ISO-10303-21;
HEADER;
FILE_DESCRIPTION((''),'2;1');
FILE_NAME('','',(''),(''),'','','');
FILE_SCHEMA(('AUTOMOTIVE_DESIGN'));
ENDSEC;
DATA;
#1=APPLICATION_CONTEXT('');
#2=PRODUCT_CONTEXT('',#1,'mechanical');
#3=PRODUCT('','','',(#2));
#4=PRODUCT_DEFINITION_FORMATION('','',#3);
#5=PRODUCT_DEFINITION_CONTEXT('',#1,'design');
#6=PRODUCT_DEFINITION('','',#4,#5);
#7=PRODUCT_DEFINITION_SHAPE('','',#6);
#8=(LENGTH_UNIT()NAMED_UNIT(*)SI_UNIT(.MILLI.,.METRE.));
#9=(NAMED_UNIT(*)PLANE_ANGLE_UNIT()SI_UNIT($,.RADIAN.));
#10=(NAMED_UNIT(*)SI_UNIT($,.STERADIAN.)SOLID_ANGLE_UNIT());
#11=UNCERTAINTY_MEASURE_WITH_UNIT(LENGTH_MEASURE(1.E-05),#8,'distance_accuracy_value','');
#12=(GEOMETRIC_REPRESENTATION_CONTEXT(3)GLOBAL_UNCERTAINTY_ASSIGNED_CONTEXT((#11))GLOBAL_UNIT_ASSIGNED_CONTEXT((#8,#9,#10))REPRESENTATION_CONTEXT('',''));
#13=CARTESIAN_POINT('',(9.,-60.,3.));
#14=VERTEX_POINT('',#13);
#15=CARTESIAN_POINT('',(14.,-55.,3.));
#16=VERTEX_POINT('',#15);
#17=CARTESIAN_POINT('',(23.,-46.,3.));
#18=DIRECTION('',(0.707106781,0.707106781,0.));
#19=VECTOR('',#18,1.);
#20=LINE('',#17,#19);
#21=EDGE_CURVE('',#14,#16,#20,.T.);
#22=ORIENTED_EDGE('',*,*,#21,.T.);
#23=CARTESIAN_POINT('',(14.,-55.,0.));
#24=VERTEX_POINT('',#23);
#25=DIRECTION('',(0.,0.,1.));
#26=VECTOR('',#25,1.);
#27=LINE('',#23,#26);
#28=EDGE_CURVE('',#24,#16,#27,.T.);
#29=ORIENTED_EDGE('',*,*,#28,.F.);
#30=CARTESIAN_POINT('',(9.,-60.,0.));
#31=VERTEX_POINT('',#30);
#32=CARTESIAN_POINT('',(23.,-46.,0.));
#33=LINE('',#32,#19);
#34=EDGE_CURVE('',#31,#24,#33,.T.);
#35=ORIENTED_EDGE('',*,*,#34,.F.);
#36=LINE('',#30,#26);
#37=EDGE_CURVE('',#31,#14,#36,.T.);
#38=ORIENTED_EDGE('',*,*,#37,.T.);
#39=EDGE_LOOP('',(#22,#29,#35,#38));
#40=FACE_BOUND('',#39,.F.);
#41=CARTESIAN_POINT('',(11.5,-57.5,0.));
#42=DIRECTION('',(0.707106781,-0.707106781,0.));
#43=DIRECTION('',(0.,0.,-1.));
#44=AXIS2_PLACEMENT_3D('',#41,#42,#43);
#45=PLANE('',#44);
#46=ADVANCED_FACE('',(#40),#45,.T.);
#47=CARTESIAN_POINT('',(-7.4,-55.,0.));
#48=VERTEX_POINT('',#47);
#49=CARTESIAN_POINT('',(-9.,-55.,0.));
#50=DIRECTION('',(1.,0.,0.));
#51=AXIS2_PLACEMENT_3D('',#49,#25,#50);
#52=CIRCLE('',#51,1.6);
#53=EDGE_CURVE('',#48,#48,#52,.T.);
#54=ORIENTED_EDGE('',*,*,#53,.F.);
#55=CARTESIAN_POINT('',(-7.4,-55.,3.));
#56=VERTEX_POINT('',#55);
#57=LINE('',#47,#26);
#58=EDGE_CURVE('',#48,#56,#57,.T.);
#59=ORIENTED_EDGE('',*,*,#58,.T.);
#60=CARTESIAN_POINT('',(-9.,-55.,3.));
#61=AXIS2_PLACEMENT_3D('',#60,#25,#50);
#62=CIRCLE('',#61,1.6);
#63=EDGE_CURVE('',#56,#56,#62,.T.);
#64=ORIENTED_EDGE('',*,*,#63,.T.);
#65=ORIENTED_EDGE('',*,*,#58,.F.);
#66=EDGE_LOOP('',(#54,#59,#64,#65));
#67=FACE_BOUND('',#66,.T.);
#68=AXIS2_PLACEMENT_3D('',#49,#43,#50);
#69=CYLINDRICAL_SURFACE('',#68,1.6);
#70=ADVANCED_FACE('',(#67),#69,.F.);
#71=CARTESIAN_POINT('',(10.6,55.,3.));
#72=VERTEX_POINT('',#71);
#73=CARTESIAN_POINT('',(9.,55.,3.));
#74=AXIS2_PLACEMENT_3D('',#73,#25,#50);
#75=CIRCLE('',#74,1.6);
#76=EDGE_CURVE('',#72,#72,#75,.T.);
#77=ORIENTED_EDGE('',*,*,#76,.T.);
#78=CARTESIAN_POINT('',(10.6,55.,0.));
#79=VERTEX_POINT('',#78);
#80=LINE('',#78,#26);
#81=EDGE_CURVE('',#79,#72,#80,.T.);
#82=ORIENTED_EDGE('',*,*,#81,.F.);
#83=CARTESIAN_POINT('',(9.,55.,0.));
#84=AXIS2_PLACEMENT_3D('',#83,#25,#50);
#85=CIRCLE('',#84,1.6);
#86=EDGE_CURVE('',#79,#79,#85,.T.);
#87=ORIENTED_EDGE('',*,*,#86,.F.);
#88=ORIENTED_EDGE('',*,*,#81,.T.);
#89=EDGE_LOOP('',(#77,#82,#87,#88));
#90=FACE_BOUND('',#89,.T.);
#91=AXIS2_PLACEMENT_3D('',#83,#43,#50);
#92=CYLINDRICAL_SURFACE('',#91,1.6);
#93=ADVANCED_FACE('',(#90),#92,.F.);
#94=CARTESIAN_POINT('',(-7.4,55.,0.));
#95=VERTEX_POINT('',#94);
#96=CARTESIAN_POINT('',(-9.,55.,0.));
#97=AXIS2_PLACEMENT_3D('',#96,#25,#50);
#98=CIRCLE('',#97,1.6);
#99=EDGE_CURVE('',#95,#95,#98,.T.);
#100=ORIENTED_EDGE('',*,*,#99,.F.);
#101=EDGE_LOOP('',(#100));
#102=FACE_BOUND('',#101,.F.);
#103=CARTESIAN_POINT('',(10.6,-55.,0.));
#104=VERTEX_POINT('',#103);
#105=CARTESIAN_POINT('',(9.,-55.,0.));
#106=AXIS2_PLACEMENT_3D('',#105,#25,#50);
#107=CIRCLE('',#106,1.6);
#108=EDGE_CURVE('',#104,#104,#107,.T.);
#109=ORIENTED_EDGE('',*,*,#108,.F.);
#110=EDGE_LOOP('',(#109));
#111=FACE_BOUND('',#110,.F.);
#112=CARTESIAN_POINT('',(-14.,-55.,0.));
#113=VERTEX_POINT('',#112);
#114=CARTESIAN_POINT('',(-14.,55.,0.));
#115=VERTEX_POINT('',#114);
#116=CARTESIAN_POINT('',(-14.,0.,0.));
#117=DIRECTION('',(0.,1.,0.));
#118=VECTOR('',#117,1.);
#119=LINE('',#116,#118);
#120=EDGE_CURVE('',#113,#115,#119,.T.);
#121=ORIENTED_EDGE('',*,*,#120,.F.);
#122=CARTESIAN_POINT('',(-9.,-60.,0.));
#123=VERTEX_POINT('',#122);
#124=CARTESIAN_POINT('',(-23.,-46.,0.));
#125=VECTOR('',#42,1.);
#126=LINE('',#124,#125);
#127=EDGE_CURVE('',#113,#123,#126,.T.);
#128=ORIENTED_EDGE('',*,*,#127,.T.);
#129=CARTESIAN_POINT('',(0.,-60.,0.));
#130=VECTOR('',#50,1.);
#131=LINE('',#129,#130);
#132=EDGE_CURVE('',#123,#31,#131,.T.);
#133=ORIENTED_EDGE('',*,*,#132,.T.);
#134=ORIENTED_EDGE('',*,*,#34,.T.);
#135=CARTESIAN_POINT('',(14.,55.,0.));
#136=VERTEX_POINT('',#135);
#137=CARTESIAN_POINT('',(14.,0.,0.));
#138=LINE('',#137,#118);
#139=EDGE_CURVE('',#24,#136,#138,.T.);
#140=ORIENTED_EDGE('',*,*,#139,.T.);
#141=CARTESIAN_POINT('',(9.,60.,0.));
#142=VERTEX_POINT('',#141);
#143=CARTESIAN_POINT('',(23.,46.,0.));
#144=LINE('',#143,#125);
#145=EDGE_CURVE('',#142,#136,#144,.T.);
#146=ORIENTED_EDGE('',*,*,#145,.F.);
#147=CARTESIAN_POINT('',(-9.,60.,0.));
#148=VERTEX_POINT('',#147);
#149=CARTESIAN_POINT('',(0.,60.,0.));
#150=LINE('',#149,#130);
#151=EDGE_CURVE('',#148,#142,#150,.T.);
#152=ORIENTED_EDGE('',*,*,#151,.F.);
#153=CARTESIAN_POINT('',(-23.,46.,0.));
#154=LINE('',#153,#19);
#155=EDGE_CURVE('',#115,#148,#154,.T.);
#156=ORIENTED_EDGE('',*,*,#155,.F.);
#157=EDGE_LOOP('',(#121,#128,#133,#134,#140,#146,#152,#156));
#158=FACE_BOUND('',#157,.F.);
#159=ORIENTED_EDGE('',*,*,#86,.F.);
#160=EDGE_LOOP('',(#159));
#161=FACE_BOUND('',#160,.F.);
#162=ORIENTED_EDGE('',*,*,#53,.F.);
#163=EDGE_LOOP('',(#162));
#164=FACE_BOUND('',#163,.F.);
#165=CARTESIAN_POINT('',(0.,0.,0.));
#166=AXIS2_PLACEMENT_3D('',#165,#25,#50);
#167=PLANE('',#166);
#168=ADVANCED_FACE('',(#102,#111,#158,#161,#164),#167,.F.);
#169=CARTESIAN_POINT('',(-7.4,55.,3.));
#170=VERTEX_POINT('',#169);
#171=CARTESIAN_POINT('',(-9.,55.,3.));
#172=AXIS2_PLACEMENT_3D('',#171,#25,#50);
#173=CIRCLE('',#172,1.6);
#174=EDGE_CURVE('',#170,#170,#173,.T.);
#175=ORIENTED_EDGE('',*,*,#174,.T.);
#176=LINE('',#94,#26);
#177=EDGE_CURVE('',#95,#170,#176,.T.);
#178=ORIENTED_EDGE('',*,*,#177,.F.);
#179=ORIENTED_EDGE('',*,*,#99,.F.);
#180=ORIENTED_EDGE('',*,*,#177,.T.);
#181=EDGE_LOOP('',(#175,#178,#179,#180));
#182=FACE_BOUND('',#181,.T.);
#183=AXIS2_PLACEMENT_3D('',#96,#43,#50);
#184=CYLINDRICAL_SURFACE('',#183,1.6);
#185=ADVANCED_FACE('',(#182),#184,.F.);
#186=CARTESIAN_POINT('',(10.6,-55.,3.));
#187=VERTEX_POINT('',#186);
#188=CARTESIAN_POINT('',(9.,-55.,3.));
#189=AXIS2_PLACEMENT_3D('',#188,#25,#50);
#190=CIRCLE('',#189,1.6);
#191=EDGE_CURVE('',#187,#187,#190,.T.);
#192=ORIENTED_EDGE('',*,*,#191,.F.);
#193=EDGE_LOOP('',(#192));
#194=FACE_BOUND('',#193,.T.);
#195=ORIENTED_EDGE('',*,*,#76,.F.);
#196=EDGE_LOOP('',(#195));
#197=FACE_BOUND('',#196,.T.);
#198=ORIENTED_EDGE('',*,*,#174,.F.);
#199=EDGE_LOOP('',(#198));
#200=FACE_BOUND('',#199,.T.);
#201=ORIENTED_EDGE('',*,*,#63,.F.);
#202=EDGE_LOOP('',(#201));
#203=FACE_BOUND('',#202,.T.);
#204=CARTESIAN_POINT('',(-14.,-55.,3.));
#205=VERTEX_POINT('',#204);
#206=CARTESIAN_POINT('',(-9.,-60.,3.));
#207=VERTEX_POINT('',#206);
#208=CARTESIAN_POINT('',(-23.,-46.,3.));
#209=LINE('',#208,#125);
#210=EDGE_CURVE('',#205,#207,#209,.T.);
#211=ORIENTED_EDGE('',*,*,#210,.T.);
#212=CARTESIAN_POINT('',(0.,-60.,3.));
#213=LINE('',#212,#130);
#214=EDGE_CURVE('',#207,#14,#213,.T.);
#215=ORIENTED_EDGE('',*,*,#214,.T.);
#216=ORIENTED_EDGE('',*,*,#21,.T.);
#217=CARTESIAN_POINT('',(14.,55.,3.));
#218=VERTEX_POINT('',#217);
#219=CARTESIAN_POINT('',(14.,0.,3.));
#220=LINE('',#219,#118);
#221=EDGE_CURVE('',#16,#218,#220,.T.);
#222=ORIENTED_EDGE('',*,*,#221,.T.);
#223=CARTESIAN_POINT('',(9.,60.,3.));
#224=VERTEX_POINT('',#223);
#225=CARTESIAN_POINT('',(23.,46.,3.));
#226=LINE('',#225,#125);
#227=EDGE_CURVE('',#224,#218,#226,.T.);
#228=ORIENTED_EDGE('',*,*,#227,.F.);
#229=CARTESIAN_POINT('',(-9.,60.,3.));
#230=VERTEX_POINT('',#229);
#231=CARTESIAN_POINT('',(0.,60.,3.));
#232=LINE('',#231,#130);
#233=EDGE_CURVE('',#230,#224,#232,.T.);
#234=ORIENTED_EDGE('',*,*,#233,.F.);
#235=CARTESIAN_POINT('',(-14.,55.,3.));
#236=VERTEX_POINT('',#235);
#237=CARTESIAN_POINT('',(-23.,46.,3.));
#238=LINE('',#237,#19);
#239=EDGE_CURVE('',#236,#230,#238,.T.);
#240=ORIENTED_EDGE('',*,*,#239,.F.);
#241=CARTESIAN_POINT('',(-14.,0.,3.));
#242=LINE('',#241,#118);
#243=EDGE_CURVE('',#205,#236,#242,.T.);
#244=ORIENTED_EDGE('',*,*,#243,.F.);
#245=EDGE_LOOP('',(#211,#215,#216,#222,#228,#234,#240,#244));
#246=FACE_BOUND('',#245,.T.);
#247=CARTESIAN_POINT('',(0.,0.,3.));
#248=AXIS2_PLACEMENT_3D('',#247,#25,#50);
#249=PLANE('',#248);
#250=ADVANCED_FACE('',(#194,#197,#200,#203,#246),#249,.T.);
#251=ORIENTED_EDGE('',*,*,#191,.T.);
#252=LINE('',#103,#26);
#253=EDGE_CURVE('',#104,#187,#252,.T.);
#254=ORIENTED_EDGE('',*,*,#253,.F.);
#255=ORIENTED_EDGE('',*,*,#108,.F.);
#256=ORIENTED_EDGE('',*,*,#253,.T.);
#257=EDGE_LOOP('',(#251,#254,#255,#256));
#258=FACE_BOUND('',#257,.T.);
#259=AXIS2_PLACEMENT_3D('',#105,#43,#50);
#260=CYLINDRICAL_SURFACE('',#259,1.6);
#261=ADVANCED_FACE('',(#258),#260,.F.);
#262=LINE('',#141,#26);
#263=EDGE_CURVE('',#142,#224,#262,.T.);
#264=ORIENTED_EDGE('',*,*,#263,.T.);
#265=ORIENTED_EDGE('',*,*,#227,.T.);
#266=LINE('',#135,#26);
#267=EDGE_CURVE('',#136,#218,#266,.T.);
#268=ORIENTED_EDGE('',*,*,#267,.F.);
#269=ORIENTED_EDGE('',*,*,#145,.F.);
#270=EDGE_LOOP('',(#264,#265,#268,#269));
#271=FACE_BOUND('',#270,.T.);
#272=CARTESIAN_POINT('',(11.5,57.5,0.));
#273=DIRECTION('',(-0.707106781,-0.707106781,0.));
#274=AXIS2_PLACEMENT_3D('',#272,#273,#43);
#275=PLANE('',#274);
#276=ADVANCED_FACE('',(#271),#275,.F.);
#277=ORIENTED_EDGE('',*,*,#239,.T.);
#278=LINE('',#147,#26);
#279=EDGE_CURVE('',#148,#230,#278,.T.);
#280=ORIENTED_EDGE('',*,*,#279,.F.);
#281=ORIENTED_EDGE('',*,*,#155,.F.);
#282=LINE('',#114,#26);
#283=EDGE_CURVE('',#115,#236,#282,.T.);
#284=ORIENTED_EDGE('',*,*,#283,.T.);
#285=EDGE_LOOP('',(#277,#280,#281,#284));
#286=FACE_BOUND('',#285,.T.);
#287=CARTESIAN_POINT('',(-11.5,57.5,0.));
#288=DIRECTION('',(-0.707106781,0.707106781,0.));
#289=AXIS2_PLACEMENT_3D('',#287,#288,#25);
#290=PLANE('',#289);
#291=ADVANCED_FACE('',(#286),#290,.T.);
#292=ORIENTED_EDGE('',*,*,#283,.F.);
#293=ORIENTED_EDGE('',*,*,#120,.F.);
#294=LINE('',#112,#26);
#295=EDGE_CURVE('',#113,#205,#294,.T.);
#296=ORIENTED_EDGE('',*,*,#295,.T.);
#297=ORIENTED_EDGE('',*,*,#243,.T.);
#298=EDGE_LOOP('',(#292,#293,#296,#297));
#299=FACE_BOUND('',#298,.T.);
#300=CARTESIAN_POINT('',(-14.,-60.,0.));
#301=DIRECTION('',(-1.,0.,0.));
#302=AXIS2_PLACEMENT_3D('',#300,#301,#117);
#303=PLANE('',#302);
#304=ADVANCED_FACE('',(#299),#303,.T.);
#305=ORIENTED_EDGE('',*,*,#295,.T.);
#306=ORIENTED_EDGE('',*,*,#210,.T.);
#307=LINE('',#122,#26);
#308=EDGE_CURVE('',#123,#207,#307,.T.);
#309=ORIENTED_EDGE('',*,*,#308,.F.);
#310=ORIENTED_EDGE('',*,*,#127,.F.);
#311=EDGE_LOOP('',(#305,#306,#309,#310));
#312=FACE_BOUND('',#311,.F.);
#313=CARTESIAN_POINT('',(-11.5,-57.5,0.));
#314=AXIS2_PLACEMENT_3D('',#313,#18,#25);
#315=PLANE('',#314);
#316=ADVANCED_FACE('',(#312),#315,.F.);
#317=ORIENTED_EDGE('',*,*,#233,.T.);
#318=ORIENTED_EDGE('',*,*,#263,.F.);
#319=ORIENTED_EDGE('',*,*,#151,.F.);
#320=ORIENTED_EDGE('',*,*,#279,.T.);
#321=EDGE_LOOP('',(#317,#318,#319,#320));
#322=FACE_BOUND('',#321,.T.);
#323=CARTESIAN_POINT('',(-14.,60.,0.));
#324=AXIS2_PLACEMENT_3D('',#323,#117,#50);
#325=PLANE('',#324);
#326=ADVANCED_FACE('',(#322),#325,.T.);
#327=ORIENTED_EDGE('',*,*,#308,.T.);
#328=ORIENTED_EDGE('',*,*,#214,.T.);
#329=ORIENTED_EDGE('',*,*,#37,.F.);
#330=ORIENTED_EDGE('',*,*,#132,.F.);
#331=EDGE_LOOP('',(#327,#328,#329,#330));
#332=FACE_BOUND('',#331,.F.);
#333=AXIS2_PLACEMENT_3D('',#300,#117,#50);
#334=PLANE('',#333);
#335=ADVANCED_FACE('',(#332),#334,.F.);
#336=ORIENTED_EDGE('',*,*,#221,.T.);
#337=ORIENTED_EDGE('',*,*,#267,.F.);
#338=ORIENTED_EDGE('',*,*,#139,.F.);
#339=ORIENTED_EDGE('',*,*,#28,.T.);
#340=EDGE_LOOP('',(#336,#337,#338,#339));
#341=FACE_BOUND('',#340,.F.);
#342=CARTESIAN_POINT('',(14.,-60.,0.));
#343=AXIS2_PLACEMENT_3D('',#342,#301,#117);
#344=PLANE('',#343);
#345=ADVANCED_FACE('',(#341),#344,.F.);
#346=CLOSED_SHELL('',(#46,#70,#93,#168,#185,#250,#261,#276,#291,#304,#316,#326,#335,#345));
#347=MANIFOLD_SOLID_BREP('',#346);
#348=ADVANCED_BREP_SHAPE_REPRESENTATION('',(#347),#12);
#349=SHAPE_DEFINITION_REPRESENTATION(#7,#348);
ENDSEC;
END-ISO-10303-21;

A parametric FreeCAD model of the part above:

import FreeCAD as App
import Part
import Sketcher

V = App.Vector
Q = App.Units.Quantity


def edges_at(feature, points):
    """Names of the edges that pass closest to the given points."""
    edges = feature.Shape.Edges
    near = lambda p: min(range(len(edges)), key=lambda i: edges[i].distToShape(Part.Vertex(*p))[0])
    return sorted({f"Edge{near(p) + 1}" for p in points})

doc = App.newDocument("Part")
body = doc.addObject("PartDesign::Body", "Body")

sketch1 = body.newObject("Sketcher::SketchObject", "Sketch")
sketch1.AttachmentSupport = (doc.getObject("XY_Plane"), [""])
sketch1.MapMode = "FlatFace"
sketch1.addGeometry(Part.LineSegment(V(-14, 60, 0), V(-14, -60, 0)), False)
sketch1.addGeometry(Part.LineSegment(V(-14, -60, 0), V(14, -60, 0)), False)
sketch1.addGeometry(Part.LineSegment(V(14, -60, 0), V(14, 60, 0)), False)
sketch1.addGeometry(Part.LineSegment(V(14, 60, 0), V(-14, 60, 0)), False)
sketch1.addGeometry(Part.Circle(V(-9, -55, 0), V(0, 0, 1), 1.6), False)
sketch1.addGeometry(Part.Circle(V(9, -55, 0), V(0, 0, 1), 1.6), False)
sketch1.addGeometry(Part.Circle(V(-9, 55, 0), V(0, 0, 1), 1.6), False)
sketch1.addGeometry(Part.Circle(V(9, 55, 0), V(0, 0, 1), 1.6), False)
sketch1.addConstraint(Sketcher.Constraint("Coincident", 0, 2, 1, 1))
sketch1.addConstraint(Sketcher.Constraint("Coincident", 1, 2, 2, 1))
sketch1.addConstraint(Sketcher.Constraint("Coincident", 2, 2, 3, 1))
sketch1.addConstraint(Sketcher.Constraint("Coincident", 3, 2, 0, 1))
sketch1.addConstraint(Sketcher.Constraint("Vertical", 0))
sketch1.addConstraint(Sketcher.Constraint("Horizontal", 1))
sketch1.addConstraint(Sketcher.Constraint("Vertical", 2))
sketch1.addConstraint(Sketcher.Constraint("Horizontal", 3))
sketch1.addConstraint(Sketcher.Constraint("Equal", 4, 5))
sketch1.addConstraint(Sketcher.Constraint("Equal", 5, 6))
sketch1.addConstraint(Sketcher.Constraint("Equal", 6, 7))
sketch1.addConstraint(Sketcher.Constraint("Symmetric", 5, 3, 6, 3, -1, 1))
sketch1.addConstraint(Sketcher.Constraint("Symmetric", 4, 3, 7, 3, -1, 1))
sketch1.addConstraint(Sketcher.Constraint("Symmetric", 0, 2, 2, 2, -1, 1))
sketch1.addConstraint(Sketcher.Constraint("Symmetric", 4, 3, 5, 3, -2))
sketch1.addConstraint(Sketcher.Constraint("Diameter", 4, Q("3.2 mm")))
sketch1.addConstraint(Sketcher.Constraint("DistanceX", 1, 1, 1, 2, Q("28 mm")))
sketch1.addConstraint(Sketcher.Constraint("DistanceY", 0, 2, 0, 1, Q("120 mm")))
sketch1.addConstraint(Sketcher.Constraint("DistanceX", 4, 3, -1, 1, Q("9 mm")))
sketch1.addConstraint(Sketcher.Constraint("DistanceY", 4, 3, -1, 1, Q("55 mm")))
pad1 = body.newObject("PartDesign::Pad", "Pad")
pad1.Profile = sketch1
pad1.Length = 3
doc.recompute()

chamfer = body.newObject("PartDesign::Chamfer", "Chamfer")
chamfer.Base = (pad1, edges_at(pad1, [
    (-14, 60, 1.5),
    (14, 60, 1.5),
    (-14, -60, 1.5),
    (14, -60, 1.5),
]))
chamfer.Size = 5

doc.recompute()
